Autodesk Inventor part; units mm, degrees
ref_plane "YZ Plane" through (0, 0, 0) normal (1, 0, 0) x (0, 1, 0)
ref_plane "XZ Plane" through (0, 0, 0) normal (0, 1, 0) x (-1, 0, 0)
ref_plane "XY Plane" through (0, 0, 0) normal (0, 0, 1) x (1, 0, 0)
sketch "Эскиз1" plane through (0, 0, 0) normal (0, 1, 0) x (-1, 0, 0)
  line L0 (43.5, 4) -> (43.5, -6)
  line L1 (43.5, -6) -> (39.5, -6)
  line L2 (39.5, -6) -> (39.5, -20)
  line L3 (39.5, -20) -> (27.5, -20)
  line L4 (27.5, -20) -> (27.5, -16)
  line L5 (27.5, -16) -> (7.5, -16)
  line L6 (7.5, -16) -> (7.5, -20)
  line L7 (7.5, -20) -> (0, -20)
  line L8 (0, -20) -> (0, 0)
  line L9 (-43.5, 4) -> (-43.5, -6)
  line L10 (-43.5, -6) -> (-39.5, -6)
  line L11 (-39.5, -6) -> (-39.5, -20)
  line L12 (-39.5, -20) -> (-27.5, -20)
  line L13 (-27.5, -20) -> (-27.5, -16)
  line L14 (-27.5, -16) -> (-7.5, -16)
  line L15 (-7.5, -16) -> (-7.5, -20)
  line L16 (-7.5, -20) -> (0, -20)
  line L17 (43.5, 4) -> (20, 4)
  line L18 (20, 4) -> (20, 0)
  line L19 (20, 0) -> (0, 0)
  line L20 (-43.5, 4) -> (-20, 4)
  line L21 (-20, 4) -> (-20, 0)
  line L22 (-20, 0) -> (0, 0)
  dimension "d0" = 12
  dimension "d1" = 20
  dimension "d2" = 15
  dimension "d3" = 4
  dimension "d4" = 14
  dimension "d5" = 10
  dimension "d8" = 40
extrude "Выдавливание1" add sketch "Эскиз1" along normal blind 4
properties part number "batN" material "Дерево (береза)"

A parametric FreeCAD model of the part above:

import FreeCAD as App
import Part
import Sketcher
from FreeCAD import Vector

doc = App.newDocument("Part")
body = doc.addObject("PartDesign::Body", "Body")

sketch1 = body.newObject("Sketcher::SketchObject", "Sketch")
sketch1.AttachmentSupport = (doc.getObject("XZ_Plane"), [""])
sketch1.MapMode = "FlatFace"
sketch1.addGeometry([
    Part.LineSegment(Vector(-43.5, -6, 0), Vector(-43.5, 4, 0)),
    Part.LineSegment(Vector(-43.5, 4, 0), Vector(-20, 4, 0)),
    Part.LineSegment(Vector(-20, 4, 0), Vector(-20, 0, 0)),
    Part.LineSegment(Vector(-20, 0, 0), Vector(20, 0, 0)),
    Part.LineSegment(Vector(20, 0, 0), Vector(20, 4, 0)),
    Part.LineSegment(Vector(20, 4, 0), Vector(43.5, 4, 0)),
    Part.LineSegment(Vector(43.5, 4, 0), Vector(43.5, -6, 0)),
    Part.LineSegment(Vector(43.5, -6, 0), Vector(39.5, -6, 0)),
    Part.LineSegment(Vector(39.5, -6, 0), Vector(39.5, -20, 0)),
    Part.LineSegment(Vector(39.5, -20, 0), Vector(27.5, -20, 0)),
    Part.LineSegment(Vector(27.5, -20, 0), Vector(27.5, -16, 0)),
    Part.LineSegment(Vector(27.5, -16, 0), Vector(7.5, -16, 0)),
    Part.LineSegment(Vector(7.5, -16, 0), Vector(7.5, -20, 0)),
    Part.LineSegment(Vector(7.5, -20, 0), Vector(-7.5, -20, 0)),
    Part.LineSegment(Vector(-7.5, -20, 0), Vector(-7.5, -16, 0)),
    Part.LineSegment(Vector(-7.5, -16, 0), Vector(-27.5, -16, 0)),
    Part.LineSegment(Vector(-27.5, -16, 0), Vector(-27.5, -20, 0)),
    Part.LineSegment(Vector(-27.5, -20, 0), Vector(-39.5, -20, 0)),
    Part.LineSegment(Vector(-39.5, -20, 0), Vector(-39.5, -6, 0)),
    Part.LineSegment(Vector(-39.5, -6, 0), Vector(-43.5, -6, 0)),
], False)
sketch1.addConstraint([
    Sketcher.Constraint("Coincident", 0, 2, 1, 1),
    Sketcher.Constraint("Coincident", 1, 2, 2, 1),
    Sketcher.Constraint("Coincident", 2, 2, 3, 1),
    Sketcher.Constraint("Coincident", 3, 2, 4, 1),
    Sketcher.Constraint("Coincident", 4, 2, 5, 1),
    Sketcher.Constraint("Coincident", 5, 2, 6, 1),
    Sketcher.Constraint("Coincident", 6, 2, 7, 1),
    Sketcher.Constraint("Coincident", 7, 2, 8, 1),
    Sketcher.Constraint("Coincident", 8, 2, 9, 1),
    Sketcher.Constraint("Coincident", 9, 2, 10, 1),
    Sketcher.Constraint("Coincident", 10, 2, 11, 1),
    Sketcher.Constraint("Coincident", 11, 2, 12, 1),
    Sketcher.Constraint("Coincident", 12, 2, 13, 1),
    Sketcher.Constraint("Coincident", 13, 2, 14, 1),
    Sketcher.Constraint("Coincident", 14, 2, 15, 1),
    Sketcher.Constraint("Coincident", 15, 2, 16, 1),
    Sketcher.Constraint("Coincident", 16, 2, 17, 1),
    Sketcher.Constraint("Coincident", 17, 2, 18, 1),
    Sketcher.Constraint("Coincident", 18, 2, 19, 1),
    Sketcher.Constraint("Coincident", 19, 2, 0, 1),
    Sketcher.Constraint("Vertical", 0),
    Sketcher.Constraint("Horizontal", 1),
    Sketcher.Constraint("Vertical", 2),
    Sketcher.Constraint("Horizontal", 3),
    Sketcher.Constraint("Vertical", 4),
    Sketcher.Constraint("Horizontal", 5),
    Sketcher.Constraint("Vertical", 6),
    Sketcher.Constraint("Horizontal", 7),
    Sketcher.Constraint("Vertical", 8),
    Sketcher.Constraint("Horizontal", 9),
    Sketcher.Constraint("Vertical", 10),
    Sketcher.Constraint("Horizontal", 11),
    Sketcher.Constraint("Vertical", 12),
    Sketcher.Constraint("Horizontal", 13),
    Sketcher.Constraint("Vertical", 14),
    Sketcher.Constraint("Horizontal", 15),
    Sketcher.Constraint("Vertical", 16),
    Sketcher.Constraint("Horizontal", 17),
    Sketcher.Constraint("Vertical", 18),
    Sketcher.Constraint("Horizontal", 19),
    Sketcher.Constraint("Symmetric", 2, 2, 3, 2, -1, 1),
    Sketcher.Constraint("Symmetric", 0, 2, 5, 2, -2),
    Sketcher.Constraint("Symmetric", 11, 2, 14, 2, -2),
    Sketcher.Constraint("Symmetric", 9, 2, 16, 2, -2),
    Sketcher.Constraint("Symmetric", 7, 2, 18, 2, -2),
    Sketcher.Constraint("Horizontal", 9, 2, 12, 2),
    Sketcher.Constraint("Equal", 19, 2),
    Sketcher.Constraint("Equal", 4, 10),
    Sketcher.Constraint("DistanceX", 3, 1, 3, 2, 40.0),
    Sketcher.Constraint("DistanceX", 7, 2, 7, 1, 4.0),
    Sketcher.Constraint("DistanceX", 9, 2, 9, 1, 12.0),
    Sketcher.Constraint("DistanceX", 11, 2, 11, 1, 20.0),
    Sketcher.Constraint("DistanceX", 13, 2, 13, 1, 15.0),
    Sketcher.Constraint("DistanceY", 0, 1, 0, 2, 10.0),
    Sketcher.Constraint("DistanceY", 8, 2, 8, 1, 14.0),
])
pad1 = body.newObject("PartDesign::Pad", "Pad")
pad1.Profile = sketch1
pad1.Length = 4
pad1.Reversed = True

doc.recompute()
